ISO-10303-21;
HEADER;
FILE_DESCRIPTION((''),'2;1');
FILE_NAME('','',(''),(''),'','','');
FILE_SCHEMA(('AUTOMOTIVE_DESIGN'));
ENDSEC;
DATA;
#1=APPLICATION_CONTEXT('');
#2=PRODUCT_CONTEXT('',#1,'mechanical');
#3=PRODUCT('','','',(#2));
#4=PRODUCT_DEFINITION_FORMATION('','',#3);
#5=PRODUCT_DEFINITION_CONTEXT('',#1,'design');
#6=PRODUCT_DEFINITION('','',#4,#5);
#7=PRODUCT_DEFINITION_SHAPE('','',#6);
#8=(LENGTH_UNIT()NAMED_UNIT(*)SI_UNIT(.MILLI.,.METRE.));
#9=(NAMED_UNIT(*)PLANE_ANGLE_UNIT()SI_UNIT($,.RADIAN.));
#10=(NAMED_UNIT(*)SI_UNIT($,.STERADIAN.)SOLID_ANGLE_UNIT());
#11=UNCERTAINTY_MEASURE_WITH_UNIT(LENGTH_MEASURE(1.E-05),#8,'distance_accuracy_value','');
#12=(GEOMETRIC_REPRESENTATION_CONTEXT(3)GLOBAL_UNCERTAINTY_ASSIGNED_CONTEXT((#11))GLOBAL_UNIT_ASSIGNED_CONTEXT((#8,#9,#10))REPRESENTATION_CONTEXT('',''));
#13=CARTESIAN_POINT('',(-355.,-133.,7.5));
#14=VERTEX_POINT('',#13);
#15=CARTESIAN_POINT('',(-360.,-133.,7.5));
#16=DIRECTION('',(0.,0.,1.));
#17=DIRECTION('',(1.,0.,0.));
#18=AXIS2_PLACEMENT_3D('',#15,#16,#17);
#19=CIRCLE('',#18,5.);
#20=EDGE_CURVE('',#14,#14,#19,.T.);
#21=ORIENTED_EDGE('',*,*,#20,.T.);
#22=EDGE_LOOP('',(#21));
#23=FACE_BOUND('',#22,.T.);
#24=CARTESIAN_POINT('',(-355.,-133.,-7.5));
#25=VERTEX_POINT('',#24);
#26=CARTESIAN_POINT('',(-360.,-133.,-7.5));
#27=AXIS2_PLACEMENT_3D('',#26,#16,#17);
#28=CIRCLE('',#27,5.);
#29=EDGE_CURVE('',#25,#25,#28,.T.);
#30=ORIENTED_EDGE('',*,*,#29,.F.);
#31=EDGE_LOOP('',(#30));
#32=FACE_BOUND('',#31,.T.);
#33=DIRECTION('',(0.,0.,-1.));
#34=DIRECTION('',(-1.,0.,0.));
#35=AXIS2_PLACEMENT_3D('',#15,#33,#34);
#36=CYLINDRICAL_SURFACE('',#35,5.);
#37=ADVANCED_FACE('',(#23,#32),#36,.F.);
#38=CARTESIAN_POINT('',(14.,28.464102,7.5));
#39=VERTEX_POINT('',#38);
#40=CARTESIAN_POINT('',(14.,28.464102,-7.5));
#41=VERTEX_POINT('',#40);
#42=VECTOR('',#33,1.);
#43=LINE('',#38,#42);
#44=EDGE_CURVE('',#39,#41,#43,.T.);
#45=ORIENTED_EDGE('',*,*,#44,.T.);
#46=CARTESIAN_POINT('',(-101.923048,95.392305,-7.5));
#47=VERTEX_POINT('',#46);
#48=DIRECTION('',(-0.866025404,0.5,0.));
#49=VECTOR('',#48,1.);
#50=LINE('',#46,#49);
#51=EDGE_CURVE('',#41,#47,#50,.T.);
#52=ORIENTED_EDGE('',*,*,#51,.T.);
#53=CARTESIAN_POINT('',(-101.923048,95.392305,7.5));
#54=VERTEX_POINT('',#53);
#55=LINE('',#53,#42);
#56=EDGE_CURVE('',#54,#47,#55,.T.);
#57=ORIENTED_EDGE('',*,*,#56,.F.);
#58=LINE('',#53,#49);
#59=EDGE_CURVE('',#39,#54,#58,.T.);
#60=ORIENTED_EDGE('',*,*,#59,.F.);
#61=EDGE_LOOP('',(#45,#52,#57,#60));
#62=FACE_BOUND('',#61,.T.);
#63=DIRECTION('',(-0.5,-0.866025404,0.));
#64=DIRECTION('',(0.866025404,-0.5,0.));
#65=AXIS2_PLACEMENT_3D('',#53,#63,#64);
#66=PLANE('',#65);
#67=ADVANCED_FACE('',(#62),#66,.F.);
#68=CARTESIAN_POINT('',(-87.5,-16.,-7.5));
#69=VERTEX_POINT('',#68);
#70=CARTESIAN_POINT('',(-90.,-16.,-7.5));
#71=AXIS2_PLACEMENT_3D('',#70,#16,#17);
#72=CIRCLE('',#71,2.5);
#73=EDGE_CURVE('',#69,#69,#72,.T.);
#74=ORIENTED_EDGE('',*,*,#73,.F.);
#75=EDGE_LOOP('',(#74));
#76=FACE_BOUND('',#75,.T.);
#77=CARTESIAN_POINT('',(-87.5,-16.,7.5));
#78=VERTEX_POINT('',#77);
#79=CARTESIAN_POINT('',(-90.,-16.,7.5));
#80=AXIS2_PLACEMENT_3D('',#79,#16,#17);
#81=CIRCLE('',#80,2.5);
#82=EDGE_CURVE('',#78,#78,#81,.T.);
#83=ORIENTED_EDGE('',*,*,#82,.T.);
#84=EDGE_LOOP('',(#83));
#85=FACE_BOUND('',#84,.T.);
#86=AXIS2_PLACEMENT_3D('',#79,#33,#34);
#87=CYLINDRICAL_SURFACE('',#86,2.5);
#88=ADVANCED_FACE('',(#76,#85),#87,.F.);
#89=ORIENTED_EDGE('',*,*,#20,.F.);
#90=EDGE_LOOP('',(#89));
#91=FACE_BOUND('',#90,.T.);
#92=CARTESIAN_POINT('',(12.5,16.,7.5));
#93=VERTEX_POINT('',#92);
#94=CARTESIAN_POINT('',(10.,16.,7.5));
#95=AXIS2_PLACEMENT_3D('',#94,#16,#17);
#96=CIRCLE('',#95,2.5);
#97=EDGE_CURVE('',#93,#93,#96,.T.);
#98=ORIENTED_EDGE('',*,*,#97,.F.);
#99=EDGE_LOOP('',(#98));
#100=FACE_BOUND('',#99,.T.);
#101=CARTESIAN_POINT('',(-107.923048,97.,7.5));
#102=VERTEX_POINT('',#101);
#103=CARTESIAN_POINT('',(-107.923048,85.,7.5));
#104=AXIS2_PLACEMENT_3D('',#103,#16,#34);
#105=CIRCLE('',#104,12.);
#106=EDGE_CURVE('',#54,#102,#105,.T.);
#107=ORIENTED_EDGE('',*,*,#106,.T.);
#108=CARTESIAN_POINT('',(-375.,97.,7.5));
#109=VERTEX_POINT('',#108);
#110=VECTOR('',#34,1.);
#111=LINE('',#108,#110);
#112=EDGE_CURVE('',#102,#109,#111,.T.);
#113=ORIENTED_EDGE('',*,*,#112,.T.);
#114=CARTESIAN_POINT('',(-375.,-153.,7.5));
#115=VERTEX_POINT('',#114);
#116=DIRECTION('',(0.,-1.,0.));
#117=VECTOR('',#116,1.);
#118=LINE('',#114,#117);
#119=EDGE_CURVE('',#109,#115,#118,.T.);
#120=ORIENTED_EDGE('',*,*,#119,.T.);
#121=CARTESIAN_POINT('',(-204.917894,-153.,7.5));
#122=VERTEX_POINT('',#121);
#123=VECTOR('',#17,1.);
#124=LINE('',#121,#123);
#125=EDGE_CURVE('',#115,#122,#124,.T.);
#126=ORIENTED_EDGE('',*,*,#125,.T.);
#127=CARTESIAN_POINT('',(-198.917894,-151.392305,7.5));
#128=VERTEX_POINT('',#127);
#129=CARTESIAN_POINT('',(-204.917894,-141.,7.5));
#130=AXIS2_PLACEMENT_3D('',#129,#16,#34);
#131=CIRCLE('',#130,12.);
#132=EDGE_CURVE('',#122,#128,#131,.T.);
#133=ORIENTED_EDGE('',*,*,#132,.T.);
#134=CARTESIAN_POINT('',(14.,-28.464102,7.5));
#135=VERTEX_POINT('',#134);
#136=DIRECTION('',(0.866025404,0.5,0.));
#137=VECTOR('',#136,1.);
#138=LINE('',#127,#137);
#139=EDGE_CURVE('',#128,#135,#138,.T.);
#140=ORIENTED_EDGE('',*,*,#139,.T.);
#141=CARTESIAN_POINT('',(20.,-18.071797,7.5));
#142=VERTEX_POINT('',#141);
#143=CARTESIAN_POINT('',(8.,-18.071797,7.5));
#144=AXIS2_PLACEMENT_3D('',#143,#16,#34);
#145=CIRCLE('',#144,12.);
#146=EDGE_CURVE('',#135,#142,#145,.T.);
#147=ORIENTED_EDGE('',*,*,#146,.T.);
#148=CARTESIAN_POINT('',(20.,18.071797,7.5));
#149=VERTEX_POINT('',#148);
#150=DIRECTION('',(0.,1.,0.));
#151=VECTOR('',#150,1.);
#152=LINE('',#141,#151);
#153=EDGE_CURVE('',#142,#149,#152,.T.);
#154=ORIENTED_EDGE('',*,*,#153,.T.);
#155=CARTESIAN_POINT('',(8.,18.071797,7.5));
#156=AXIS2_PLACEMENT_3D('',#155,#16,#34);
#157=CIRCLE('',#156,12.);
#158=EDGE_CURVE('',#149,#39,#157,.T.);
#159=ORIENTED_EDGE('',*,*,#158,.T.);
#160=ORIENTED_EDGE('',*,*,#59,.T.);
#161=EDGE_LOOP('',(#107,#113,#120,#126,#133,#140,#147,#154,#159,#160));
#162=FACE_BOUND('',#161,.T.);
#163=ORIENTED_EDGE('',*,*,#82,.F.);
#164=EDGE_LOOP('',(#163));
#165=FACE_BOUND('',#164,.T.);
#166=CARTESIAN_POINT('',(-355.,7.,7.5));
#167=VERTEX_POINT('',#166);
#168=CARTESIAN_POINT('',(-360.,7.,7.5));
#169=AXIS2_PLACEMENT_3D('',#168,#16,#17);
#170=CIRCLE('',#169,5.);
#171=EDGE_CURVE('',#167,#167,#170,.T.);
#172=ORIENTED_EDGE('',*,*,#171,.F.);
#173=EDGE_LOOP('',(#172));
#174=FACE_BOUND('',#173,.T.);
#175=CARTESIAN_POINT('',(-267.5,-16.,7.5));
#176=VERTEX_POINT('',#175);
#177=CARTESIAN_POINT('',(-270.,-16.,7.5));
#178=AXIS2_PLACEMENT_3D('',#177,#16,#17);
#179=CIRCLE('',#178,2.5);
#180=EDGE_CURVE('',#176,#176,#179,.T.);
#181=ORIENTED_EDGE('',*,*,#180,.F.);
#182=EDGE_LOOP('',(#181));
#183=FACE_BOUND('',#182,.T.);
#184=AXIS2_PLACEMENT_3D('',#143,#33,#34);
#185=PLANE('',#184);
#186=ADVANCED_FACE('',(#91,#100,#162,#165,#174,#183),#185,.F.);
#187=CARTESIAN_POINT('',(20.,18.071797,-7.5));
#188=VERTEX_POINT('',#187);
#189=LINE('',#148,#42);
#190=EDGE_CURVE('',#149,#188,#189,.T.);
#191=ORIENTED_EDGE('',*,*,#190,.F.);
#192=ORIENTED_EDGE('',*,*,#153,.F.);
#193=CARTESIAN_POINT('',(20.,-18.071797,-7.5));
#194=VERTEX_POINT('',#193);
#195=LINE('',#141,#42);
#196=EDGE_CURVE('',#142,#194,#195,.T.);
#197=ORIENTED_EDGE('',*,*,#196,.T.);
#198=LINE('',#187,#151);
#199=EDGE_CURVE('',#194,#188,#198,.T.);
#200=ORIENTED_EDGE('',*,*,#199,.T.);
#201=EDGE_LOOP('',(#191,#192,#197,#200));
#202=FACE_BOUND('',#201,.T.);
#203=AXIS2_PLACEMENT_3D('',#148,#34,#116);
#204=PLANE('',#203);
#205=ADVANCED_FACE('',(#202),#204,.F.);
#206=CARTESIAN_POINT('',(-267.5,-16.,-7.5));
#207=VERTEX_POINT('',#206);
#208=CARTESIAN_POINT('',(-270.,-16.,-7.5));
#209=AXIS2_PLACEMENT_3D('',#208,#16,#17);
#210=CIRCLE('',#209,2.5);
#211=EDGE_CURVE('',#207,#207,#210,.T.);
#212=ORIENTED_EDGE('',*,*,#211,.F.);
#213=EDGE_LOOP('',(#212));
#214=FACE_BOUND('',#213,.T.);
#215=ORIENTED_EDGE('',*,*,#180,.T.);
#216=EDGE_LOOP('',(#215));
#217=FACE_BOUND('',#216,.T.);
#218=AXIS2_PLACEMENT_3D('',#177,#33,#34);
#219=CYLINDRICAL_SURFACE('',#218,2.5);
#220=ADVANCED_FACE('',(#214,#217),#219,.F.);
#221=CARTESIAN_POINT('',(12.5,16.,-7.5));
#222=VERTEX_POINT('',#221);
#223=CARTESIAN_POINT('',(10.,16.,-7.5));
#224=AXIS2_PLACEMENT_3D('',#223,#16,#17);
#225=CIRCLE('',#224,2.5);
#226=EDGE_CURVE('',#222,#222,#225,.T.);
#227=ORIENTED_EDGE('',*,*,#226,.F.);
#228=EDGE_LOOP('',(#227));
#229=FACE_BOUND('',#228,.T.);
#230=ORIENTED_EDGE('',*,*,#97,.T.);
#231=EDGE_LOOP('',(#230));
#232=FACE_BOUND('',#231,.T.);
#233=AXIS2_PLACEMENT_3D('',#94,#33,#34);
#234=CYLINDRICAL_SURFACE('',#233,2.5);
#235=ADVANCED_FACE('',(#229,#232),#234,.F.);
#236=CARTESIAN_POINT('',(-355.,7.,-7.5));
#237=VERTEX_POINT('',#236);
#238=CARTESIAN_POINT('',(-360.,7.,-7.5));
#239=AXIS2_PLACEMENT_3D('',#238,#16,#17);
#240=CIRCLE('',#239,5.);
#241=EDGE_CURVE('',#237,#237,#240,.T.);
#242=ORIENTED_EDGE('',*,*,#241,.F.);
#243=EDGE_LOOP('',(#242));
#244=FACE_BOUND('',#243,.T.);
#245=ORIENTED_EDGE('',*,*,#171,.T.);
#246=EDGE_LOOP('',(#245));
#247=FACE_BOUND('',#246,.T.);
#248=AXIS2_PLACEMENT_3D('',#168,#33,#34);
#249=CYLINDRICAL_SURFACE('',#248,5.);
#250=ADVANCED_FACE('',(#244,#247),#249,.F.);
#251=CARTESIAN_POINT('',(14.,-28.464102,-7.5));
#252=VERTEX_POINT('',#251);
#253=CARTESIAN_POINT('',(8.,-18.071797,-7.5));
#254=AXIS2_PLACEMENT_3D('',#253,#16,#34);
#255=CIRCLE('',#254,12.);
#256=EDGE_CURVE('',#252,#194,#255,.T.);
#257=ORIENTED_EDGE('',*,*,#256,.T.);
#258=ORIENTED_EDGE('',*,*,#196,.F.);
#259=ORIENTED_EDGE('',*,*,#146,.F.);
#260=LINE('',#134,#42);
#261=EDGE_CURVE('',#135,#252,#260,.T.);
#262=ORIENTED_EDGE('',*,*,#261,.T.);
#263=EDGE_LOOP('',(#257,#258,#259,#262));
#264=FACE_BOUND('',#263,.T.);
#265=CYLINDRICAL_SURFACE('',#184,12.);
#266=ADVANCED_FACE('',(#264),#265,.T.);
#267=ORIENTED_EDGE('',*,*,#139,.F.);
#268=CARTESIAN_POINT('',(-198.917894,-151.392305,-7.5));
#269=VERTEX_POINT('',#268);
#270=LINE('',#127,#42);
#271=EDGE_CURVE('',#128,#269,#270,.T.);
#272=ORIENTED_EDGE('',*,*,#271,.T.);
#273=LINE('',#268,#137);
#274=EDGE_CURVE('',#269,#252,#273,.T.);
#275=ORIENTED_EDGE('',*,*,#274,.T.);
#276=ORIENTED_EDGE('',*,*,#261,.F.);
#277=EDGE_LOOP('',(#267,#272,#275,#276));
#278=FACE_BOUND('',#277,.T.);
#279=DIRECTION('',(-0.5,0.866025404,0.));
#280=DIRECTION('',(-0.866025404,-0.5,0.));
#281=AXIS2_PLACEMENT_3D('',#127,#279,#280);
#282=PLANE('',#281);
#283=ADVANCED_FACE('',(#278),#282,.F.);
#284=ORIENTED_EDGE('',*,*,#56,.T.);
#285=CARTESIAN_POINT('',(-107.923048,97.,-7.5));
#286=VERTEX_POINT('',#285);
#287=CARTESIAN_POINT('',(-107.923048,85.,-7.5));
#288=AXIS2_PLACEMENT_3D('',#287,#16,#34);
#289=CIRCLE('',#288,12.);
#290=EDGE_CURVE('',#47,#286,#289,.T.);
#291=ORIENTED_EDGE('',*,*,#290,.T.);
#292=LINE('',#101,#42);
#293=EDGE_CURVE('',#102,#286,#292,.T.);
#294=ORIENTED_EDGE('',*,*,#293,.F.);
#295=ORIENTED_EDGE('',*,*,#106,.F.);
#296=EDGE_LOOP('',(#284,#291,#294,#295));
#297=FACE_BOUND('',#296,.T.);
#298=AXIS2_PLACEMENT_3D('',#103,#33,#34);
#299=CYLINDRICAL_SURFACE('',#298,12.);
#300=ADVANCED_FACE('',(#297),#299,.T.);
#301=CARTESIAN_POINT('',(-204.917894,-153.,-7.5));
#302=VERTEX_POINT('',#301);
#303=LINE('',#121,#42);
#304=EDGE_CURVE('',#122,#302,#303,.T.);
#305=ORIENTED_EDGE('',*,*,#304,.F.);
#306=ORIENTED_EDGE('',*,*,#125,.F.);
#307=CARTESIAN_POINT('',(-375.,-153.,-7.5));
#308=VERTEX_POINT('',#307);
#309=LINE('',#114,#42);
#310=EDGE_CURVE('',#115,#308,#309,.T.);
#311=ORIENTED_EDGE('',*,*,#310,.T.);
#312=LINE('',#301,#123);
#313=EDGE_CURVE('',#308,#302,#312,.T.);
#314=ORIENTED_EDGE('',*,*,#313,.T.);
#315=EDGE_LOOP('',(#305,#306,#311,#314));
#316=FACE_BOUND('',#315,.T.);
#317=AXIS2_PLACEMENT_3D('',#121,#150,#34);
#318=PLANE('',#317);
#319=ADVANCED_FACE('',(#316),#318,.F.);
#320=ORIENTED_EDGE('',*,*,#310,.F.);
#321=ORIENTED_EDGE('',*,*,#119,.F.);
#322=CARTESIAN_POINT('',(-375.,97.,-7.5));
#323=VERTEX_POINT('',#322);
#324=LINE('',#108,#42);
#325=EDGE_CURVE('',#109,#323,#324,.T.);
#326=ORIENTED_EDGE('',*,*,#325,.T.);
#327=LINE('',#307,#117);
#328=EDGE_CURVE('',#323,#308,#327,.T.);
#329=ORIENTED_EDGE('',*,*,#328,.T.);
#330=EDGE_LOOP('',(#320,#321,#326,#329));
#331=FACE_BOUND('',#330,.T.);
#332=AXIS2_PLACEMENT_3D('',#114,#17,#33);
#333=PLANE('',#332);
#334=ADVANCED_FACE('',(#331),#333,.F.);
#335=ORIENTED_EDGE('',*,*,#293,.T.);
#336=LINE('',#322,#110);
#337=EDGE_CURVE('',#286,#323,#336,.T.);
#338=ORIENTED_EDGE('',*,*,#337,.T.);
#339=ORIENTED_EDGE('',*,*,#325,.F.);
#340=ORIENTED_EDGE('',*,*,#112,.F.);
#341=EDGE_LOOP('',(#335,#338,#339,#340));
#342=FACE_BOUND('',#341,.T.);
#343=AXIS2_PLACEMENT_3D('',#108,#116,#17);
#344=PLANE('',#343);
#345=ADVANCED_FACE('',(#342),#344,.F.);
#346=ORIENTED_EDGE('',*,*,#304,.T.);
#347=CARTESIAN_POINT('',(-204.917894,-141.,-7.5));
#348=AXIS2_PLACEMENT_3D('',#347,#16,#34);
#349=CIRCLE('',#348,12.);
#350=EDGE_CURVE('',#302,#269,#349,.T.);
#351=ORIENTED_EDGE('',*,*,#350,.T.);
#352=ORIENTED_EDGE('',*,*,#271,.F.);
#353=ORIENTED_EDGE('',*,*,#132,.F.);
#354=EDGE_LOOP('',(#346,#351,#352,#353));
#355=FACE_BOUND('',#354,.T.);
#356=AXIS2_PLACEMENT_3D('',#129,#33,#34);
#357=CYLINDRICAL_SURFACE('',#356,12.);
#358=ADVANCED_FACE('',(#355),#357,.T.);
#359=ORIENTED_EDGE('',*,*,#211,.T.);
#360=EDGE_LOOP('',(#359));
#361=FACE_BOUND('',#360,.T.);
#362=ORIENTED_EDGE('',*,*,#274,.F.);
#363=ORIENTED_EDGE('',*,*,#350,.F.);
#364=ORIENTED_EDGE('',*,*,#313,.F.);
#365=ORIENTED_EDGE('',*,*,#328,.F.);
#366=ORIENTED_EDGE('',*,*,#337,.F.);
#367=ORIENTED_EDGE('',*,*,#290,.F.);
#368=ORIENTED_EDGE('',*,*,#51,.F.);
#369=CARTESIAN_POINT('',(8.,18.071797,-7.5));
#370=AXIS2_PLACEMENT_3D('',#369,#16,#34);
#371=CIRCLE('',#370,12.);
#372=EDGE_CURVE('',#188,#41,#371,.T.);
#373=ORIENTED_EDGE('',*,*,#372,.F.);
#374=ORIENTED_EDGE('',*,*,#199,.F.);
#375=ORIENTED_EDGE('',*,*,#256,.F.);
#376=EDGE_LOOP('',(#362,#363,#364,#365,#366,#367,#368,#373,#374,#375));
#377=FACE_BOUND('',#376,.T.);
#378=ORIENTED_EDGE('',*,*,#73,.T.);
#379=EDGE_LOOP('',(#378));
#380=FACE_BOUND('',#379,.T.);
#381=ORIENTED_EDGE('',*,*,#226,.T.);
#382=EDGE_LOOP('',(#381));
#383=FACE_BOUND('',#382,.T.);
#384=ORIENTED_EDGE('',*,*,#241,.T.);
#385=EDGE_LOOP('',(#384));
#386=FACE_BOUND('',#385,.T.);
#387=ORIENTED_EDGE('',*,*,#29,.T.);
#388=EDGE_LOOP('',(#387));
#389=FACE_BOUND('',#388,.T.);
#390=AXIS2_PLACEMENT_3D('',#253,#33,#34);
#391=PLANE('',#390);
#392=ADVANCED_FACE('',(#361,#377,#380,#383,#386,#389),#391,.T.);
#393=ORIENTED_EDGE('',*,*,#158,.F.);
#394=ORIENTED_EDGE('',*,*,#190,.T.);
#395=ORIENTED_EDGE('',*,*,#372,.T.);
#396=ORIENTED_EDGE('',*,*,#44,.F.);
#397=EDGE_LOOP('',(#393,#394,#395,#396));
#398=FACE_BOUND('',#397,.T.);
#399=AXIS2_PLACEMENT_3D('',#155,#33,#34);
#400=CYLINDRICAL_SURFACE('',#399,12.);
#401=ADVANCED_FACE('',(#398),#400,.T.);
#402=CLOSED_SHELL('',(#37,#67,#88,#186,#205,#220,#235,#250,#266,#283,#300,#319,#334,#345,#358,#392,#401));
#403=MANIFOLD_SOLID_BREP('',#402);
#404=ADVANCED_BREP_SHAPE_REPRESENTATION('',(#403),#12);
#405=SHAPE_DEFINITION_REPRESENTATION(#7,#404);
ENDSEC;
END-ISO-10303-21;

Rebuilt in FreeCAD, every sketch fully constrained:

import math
import FreeCAD as App
import Part
import Sketcher
Q = App.Units.Quantity

doc = App.newDocument("Part")
body = doc.addObject("PartDesign::Body", "Body")

sketch1 = body.newObject("Sketcher::SketchObject", "Sketch")
sketch1.AttachmentSupport = (doc.getObject("XY_Plane"), [""])
sketch1.MapMode = "FlatFace"
sketch1.addGeometry([
    Part.LineSegment(App.Vector(-375, -153, 0), App.Vector(-204.9, -153, 0)),
    Part.ArcOfCircle(Part.Circle(App.Vector(-204.9, -141, 0), App.Vector(0, 0, 1), 12), math.radians(-90), math.radians(-60)),
    Part.LineSegment(App.Vector(-198.9, -151.4, 0), App.Vector(14, -28.5, 0)),
    Part.ArcOfCircle(Part.Circle(App.Vector(8, -18.1, 0), App.Vector(0, 0, 1), 12), math.radians(-60), math.radians(0)),
    Part.LineSegment(App.Vector(20, -18.1, 0), App.Vector(20, 18.1, 0)),
    Part.ArcOfCircle(Part.Circle(App.Vector(8, 18.1, 0), App.Vector(0, 0, 1), 12), math.radians(0), math.radians(60)),
    Part.LineSegment(App.Vector(14, 28.5, 0), App.Vector(-101.9, 95.4, 0)),
    Part.ArcOfCircle(Part.Circle(App.Vector(-107.9, 85, 0), App.Vector(0, 0, 1), 12), math.radians(60), math.radians(90)),
    Part.LineSegment(App.Vector(-107.9, 97, 0), App.Vector(-375, 97, 0)),
    Part.LineSegment(App.Vector(-375, 97, 0), App.Vector(-375, -153, 0)),
    Part.Circle(App.Vector(-360, -133, 0), App.Vector(0, 0, 1), 5),
    Part.Circle(App.Vector(10, 16, 0), App.Vector(0, 0, 1), 2.5),
    Part.Circle(App.Vector(-90, -16, 0), App.Vector(0, 0, 1), 2.5),
    Part.Circle(App.Vector(-270, -16, 0), App.Vector(0, 0, 1), 2.5),
    Part.Circle(App.Vector(-360, 7, 0), App.Vector(0, 0, 1), 5),
], False)
sketch1.addConstraint([
    Sketcher.Constraint("Tangent", 0, 2, 1, 1),
    Sketcher.Constraint("Tangent", 1, 2, 2, 1),
    Sketcher.Constraint("Tangent", 2, 2, 3, 1),
    Sketcher.Constraint("Tangent", 3, 2, 4, 1),
    Sketcher.Constraint("Tangent", 4, 2, 5, 1),
    Sketcher.Constraint("Tangent", 5, 2, 6, 1),
    Sketcher.Constraint("Tangent", 6, 2, 7, 1),
    Sketcher.Constraint("Tangent", 7, 2, 8, 1),
    Sketcher.Constraint("Coincident", 8, 2, 9, 1),
    Sketcher.Constraint("Coincident", 9, 2, 0, 1),
    Sketcher.Constraint("Horizontal", 0),
    Sketcher.Constraint("Vertical", 4),
    Sketcher.Constraint("Horizontal", 8),
    Sketcher.Constraint("Vertical", 9),
    Sketcher.Constraint("Equal", 1, 3),
    Sketcher.Constraint("Equal", 3, 5),
    Sketcher.Constraint("Equal", 5, 7),
    Sketcher.Constraint("Equal", 11, 12),
    Sketcher.Constraint("Equal", 12, 13),
    Sketcher.Constraint("Equal", 10, 14),
    Sketcher.Constraint("Symmetric", 2, 2, 5, 2, -1),
    Sketcher.Constraint("Horizontal", 12, 3, 13, 3),
    Sketcher.Constraint("Vertical", 10, 3, 14, 3),
    Sketcher.Constraint("Diameter", 10, 10.0),
    Sketcher.Constraint("Diameter", 11, 5.0),
    Sketcher.Constraint("Radius", 1, 12.0),
    Sketcher.Constraint("DistanceY", 9, 2, 9, 1, 250.0),
    Sketcher.Constraint("Angle", 2, Q("30 deg")),
    Sketcher.Constraint("DistanceY", 1, 3, -1, 1, 141.0),
    Sketcher.Constraint("DistanceX", -1, 1, 3, 3, 8.0),
    Sketcher.Constraint("DistanceX", 10, 3, -1, 1, 360.0),
    Sketcher.Constraint("DistanceY", 10, 3, -1, 1, 133.0),
    Sketcher.Constraint("DistanceX", -1, 1, 11, 3, 10.0),
    Sketcher.Constraint("DistanceY", -1, 1, 11, 3, 16.0),
    Sketcher.Constraint("DistanceX", 12, 3, -1, 1, 90.0),
    Sketcher.Constraint("DistanceY", 12, 3, -1, 1, 16.0),
    Sketcher.Constraint("DistanceX", 13, 3, -1, 1, 270.0),
    Sketcher.Constraint("DistanceY", -1, 1, 14, 3, 7.0),
    Sketcher.Constraint("DistanceX", 8, 2, -1, 1, 375.0),
    Sketcher.Constraint("DistanceX", 8, 2, 8, 1, 267.076952),
])
pad1 = body.newObject("PartDesign::Pad", "Pad")
pad1.Profile = sketch1
pad1.Length = 15
pad1.Midplane = True

doc.recompute()
